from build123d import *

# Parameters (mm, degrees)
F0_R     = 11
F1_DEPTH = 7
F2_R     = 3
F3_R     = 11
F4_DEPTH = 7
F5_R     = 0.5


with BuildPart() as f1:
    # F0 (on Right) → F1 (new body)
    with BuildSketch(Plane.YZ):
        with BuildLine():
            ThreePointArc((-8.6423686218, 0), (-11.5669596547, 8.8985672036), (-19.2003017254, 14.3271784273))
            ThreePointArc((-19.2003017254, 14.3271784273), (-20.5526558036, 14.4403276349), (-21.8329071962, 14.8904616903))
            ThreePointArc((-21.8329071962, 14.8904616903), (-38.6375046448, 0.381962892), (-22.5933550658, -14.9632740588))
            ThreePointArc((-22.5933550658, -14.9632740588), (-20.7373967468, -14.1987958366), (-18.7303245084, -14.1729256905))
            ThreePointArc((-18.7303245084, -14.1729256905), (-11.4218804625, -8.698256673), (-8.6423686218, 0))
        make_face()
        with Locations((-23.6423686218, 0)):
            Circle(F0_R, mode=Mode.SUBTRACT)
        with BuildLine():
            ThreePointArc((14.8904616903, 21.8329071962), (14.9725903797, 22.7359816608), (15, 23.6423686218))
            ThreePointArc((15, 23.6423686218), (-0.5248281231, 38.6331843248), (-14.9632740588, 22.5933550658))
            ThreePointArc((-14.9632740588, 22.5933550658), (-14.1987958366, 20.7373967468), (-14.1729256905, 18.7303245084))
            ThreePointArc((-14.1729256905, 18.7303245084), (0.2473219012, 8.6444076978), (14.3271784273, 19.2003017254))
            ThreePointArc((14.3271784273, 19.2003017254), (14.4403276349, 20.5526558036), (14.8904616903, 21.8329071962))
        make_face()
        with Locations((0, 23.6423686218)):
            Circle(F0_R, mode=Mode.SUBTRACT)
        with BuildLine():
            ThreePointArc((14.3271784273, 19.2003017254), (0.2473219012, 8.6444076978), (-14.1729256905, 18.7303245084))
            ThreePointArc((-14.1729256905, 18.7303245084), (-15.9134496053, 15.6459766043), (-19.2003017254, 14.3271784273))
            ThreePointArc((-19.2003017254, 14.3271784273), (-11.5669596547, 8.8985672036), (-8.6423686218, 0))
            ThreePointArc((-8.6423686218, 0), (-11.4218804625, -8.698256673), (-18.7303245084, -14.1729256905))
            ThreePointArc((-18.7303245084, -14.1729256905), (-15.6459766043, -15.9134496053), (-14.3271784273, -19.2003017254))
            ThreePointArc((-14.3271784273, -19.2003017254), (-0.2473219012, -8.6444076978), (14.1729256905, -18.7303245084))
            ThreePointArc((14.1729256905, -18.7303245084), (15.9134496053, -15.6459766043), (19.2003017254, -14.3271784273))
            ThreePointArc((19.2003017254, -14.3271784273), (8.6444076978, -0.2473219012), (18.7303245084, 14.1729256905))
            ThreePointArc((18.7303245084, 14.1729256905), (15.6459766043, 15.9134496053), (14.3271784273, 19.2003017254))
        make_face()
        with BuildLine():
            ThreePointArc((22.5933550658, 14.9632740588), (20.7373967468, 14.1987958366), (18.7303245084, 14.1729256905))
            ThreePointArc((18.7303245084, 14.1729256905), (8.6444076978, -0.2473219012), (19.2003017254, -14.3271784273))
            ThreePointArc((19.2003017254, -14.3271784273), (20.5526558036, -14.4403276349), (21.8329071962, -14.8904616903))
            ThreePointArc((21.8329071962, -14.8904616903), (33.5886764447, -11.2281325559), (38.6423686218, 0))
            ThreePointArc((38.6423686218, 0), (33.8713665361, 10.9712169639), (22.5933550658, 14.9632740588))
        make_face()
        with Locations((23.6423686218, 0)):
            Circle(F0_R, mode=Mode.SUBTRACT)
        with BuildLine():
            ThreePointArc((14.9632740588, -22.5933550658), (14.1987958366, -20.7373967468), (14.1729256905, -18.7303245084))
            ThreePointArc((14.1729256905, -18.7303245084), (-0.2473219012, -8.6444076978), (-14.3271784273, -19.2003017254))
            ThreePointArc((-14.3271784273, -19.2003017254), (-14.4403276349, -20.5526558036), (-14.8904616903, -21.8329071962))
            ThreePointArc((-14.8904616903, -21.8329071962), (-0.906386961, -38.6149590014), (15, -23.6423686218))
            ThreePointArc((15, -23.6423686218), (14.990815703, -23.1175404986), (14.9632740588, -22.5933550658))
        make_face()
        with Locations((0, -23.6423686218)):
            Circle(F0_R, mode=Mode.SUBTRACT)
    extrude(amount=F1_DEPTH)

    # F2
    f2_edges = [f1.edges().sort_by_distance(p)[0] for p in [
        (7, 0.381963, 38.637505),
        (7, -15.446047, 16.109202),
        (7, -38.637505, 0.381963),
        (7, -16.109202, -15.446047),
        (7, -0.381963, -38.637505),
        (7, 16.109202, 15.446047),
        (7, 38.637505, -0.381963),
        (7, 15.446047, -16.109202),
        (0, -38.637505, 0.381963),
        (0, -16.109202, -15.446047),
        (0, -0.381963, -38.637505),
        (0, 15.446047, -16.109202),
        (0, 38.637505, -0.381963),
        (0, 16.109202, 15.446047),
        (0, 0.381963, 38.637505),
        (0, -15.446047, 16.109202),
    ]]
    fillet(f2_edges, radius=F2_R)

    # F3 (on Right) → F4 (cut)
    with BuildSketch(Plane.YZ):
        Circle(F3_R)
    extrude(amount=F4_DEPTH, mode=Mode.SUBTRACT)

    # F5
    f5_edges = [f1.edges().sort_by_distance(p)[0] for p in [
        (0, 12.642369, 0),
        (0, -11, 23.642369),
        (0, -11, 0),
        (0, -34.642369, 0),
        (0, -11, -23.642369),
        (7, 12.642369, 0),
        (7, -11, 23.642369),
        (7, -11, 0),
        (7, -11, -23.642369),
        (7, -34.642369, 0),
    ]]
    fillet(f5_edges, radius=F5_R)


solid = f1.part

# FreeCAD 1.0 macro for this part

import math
import FreeCAD as App
import Part
import Sketcher
from FreeCAD import Vector


def edges_at(feature, points):
    """Names of the edges that pass closest to the given points."""
    edges = feature.Shape.Edges
    near = lambda p: min(range(len(edges)), key=lambda i: edges[i].distToShape(Part.Vertex(*p))[0])
    return sorted({f"Edge{near(p) + 1}" for p in points})

doc = App.newDocument("Part")
body = doc.addObject("PartDesign::Body", "Body")

# Sketch on YZ plane
sketch1 = body.newObject("Sketcher::SketchObject", "Sketch")
sketch1.AttachmentSupport = (doc.getObject("YZ_Plane"), [""])
sketch1.MapMode = "FlatFace"
sketch1.addGeometry([
    Part.ArcOfCircle(Part.Circle(Vector(-19.4, 19.7, 0), Vector(0, 0, 1), 5.3), math.radians(-117), math.radians(-87)),  # 0
    Part.ArcOfCircle(Part.Circle(Vector(-23.6, 0, 0), Vector(0, 0, 1), 15), math.radians(83), math.radians(274)),  # 1
    Part.ArcOfCircle(Part.Circle(Vector(-19.7, -19.4, 0), Vector(0, 0, 1), 5.3), math.radians(80), math.radians(123)),  # 2
    Part.ArcOfCircle(Part.Circle(Vector(-19.7, -19.4, 0), Vector(0, 0, 1), 5.3), math.radians(3), math.radians(80)),  # 3
    Part.ArcOfCircle(Part.Circle(Vector(-19.7, -19.4, 0), Vector(0, 0, 1), 5.3), math.radians(-27), math.radians(3)),  # 4
    Part.ArcOfCircle(Part.Circle(Vector(0, -23.6, 0), Vector(0, 0, 1), 15), math.radians(173), math.radians(360)),  # 5
    Part.ArcOfCircle(Part.Circle(Vector(0, -23.6, 0), Vector(0, 0, 1), 15), math.radians(0), math.radians(4.01)),  # 6
    Part.ArcOfCircle(Part.Circle(Vector(19.4, -19.7, 0), Vector(0, 0, 1), 5.3), math.radians(170), math.radians(213)),  # 7
    Part.ArcOfCircle(Part.Circle(Vector(19.4, -19.7, 0), Vector(0, 0, 1), 5.3), math.radians(93), math.radians(170)),  # 8
    Part.ArcOfCircle(Part.Circle(Vector(19.4, -19.7, 0), Vector(0, 0, 1), 5.3), math.radians(63), math.radians(93)),  # 9
    Part.ArcOfCircle(Part.Circle(Vector(23.6, 0, 0), Vector(0, 0, 1), 15), math.radians(-97), math.radians(0)),  # 10
    Part.ArcOfCircle(Part.Circle(Vector(23.6, 0, 0), Vector(0, 0, 1), 15), math.radians(0), math.radians(94)),  # 11
    Part.ArcOfCircle(Part.Circle(Vector(19.7, 19.4, 0), Vector(0, 0, 1), 5.3), math.radians(-100), math.radians(-57)),  # 12
    Part.ArcOfCircle(Part.Circle(Vector(19.7, 19.4, 0), Vector(0, 0, 1), 5.3), math.radians(-177), math.radians(-100)),  # 13
    Part.ArcOfCircle(Part.Circle(Vector(19.7, 19.4, 0), Vector(0, 0, 1), 5.3), math.radians(153), math.radians(183)),  # 14
    Part.ArcOfCircle(Part.Circle(Vector(0, 23.6, 0), Vector(0, 0, 1), 15), math.radians(-6.93), math.radians(0)),  # 15
    Part.ArcOfCircle(Part.Circle(Vector(0, 23.6, 0), Vector(0, 0, 1), 15), math.radians(0), math.radians(184)),  # 16
    Part.ArcOfCircle(Part.Circle(Vector(-19.4, 19.7, 0), Vector(0, 0, 1), 5.3), math.radians(-10), math.radians(33)),  # 17
    Part.ArcOfCircle(Part.Circle(Vector(-19.4, 19.7, 0), Vector(0, 0, 1), 5.3), math.radians(-87), math.radians(-10)),  # 18
    Part.Circle(Vector(-23.6, 0, 0), Vector(0, 0, 1), 11),  # 19
    Part.Circle(Vector(0, -23.6, 0), Vector(0, 0, 1), 11),  # 20
    Part.Circle(Vector(23.6, 0, 0), Vector(0, 0, 1), 11),  # 21
    Part.Circle(Vector(0, 23.6, 0), Vector(0, 0, 1), 11),  # 22
], False)
sketch1.addConstraint([
    Sketcher.Constraint("Coincident", 0, 1, 1, 1),
    Sketcher.Constraint("Coincident", 1, 2, 2, 2),
    Sketcher.Constraint("Tangent", 2, 1, 3, 2),
    Sketcher.Constraint("Tangent", 3, 1, 4, 2),
    Sketcher.Constraint("Coincident", 4, 1, 5, 1),
    Sketcher.Constraint("Tangent", 5, 2, 6, 1),
    Sketcher.Constraint("Coincident", 6, 2, 7, 2),
    Sketcher.Constraint("Tangent", 7, 1, 8, 2),
    Sketcher.Constraint("Tangent", 8, 1, 9, 2),
    Sketcher.Constraint("Coincident", 9, 1, 10, 1),
    Sketcher.Constraint("Tangent", 10, 2, 11, 1),
    Sketcher.Constraint("Coincident", 11, 2, 12, 2),
    Sketcher.Constraint("Tangent", 12, 1, 13, 2),
    Sketcher.Constraint("Tangent", 13, 1, 14, 2),
    Sketcher.Constraint("Coincident", 14, 1, 15, 1),
    Sketcher.Constraint("Tangent", 15, 2, 16, 1),
    Sketcher.Constraint("Coincident", 16, 2, 17, 2),
    Sketcher.Constraint("Tangent", 17, 1, 18, 2),
    Sketcher.Constraint("Tangent", 18, 1, 0, 2),
    Sketcher.Constraint("Coincident", 4, 3, 2, 3),
    Sketcher.Constraint("Coincident", 9, 3, 7, 3),
    Sketcher.Constraint("Coincident", 14, 3, 12, 3),
    Sketcher.Constraint("Coincident", 17, 3, 0, 3),
    Sketcher.Constraint("Coincident", 19, 3, 1, 3),
    Sketcher.Constraint("Coincident", 20, 3, 5, 3),
    Sketcher.Constraint("Coincident", 21, 3, 10, 3),
    Sketcher.Constraint("Coincident", 22, 3, 15, 3),
    Sketcher.Constraint("Equal", 0, 2),
    Sketcher.Constraint("Equal", 1, 5),
    Sketcher.Constraint("Equal", 5, 6),
    Sketcher.Constraint("Equal", 4, 7),
    Sketcher.Constraint("Equal", 6, 10),
    Sketcher.Constraint("Equal", 10, 11),
    Sketcher.Constraint("Equal", 9, 12),
    Sketcher.Constraint("Equal", 11, 15),
    Sketcher.Constraint("Equal", 15, 16),
    Sketcher.Constraint("Equal", 19, 20),
    Sketcher.Constraint("Equal", 20, 21),
    Sketcher.Constraint("Equal", 21, 22),
    Sketcher.Constraint("Symmetric", 0, 3, 7, 3, -1, 1),
    Sketcher.Constraint("Symmetric", 1, 3, 10, 3, -1, 1),
    Sketcher.Constraint("Symmetric", 2, 3, 12, 3, -1, 1),
    Sketcher.Constraint("Symmetric", 5, 3, 15, 3, -1, 1),
    Sketcher.Constraint("Symmetric", 5, 2, 15, 2, -1),
    Sketcher.Constraint("PointOnObject", 1, 3, -1),
    Sketcher.Constraint("PointOnObject", 10, 2, -1),
    Sketcher.Constraint("Horizontal", 20, 3, 5, 2),
    Sketcher.Constraint("Diameter", 19, 22.0),
    Sketcher.Constraint("Radius", 1, 15.0),
    Sketcher.Constraint("Radius", 0, 5.344164),
    Sketcher.Constraint("DistanceY", 3, 1, -1, 1, 19.200302),
    Sketcher.Constraint("DistanceX", -1, 1, 8, 1, 19.200302),
    Sketcher.Constraint("DistanceY", -1, 1, 13, 1, 19.200302),
    Sketcher.Constraint("DistanceX", 18, 1, -1, 1, 19.200302),
    Sketcher.Constraint("DistanceY", -1, 1, 0, 3, 19.666208),
    Sketcher.Constraint("DistanceX", 1, 3, -1, 1, 23.642369),
    Sketcher.Constraint("DistanceX", 2, 3, -1, 1, 19.666208),
    Sketcher.Constraint("DistanceY", 5, 3, -1, 1, 23.642369),
    Sketcher.Constraint("DistanceY", -1, 1, 0, 1, 14.890462),
    Sketcher.Constraint("DistanceX", 3, 1, -1, 1, 14.327178),
    Sketcher.Constraint("DistanceX", 1, 2, 2, 1, 3.863031),
    Sketcher.Constraint("DistanceX", 7, 1, 6, 2, 0.790348),
    Sketcher.Constraint("DistanceX", 12, 1, 11, 2, 3.863031),
    Sketcher.Constraint("DistanceX", 16, 2, 17, 1, 0.790348),
])
pad1 = body.newObject("PartDesign::Pad", "Pad")
pad1.Profile = sketch1
pad1.Length = 7
doc.recompute()

fillet = body.newObject("PartDesign::Fillet", "Fillet")
fillet.Base = (pad1, edges_at(pad1, [
    (7, -0.525, 38.633),
    (7, -15.913, 15.646),
    (7, -38.638, 0.382),
    (7, -15.646, -15.913),
    (7, -0.906, -38.615),
    (7, 15.646, 15.913),
    (7, 33.589, -11.228),
    (7, 15.913, -15.646),
    (0, -38.638, 0.382),
    (0, -15.646, -15.913),
    (0, -0.906, -38.615),
    (0, 15.913, -15.646),
    (0, 33.589, -11.228),
    (0, 15.646, 15.913),
    (0, -0.525, 38.633),
    (0, -15.913, 15.646),
]))
fillet.Radius = 3

# Sketch on YZ plane
sketch2 = body.newObject("Sketcher::SketchObject", "Sketch001")
sketch2.AttachmentSupport = (doc.getObject("YZ_Plane"), [""])
sketch2.MapMode = "FlatFace"
sketch2.addGeometry(Part.Circle(Vector(0, 0, 0), Vector(0, 0, 1), 11), False)
sketch2.addConstraint([
    Sketcher.Constraint("Coincident", 0, 3, -1, 1),
    Sketcher.Constraint("Diameter", 0, 22.0),
])
pocket1 = body.newObject("PartDesign::Pocket", "Pocket")
pocket1.Profile = sketch2
pocket1.Length = 7
pocket1.Reversed = True
doc.recompute()

fillet2 = body.newObject("PartDesign::Fillet", "Fillet001")
fillet2.Base = (pocket1, edges_at(pocket1, [
    (0, 12.642, 0),
    (0, -11, 23.642),
    (0, -11, 0),
    (0, -34.642, 0),
    (0, -11, -23.642),
    (7, 12.642, 0),
    (7, -11, 23.642),
    (7, -11, 0),
    (7, -11, -23.642),
    (7, -34.642, 0),
]))
fillet2.Radius = 0.5

doc.recompute()
